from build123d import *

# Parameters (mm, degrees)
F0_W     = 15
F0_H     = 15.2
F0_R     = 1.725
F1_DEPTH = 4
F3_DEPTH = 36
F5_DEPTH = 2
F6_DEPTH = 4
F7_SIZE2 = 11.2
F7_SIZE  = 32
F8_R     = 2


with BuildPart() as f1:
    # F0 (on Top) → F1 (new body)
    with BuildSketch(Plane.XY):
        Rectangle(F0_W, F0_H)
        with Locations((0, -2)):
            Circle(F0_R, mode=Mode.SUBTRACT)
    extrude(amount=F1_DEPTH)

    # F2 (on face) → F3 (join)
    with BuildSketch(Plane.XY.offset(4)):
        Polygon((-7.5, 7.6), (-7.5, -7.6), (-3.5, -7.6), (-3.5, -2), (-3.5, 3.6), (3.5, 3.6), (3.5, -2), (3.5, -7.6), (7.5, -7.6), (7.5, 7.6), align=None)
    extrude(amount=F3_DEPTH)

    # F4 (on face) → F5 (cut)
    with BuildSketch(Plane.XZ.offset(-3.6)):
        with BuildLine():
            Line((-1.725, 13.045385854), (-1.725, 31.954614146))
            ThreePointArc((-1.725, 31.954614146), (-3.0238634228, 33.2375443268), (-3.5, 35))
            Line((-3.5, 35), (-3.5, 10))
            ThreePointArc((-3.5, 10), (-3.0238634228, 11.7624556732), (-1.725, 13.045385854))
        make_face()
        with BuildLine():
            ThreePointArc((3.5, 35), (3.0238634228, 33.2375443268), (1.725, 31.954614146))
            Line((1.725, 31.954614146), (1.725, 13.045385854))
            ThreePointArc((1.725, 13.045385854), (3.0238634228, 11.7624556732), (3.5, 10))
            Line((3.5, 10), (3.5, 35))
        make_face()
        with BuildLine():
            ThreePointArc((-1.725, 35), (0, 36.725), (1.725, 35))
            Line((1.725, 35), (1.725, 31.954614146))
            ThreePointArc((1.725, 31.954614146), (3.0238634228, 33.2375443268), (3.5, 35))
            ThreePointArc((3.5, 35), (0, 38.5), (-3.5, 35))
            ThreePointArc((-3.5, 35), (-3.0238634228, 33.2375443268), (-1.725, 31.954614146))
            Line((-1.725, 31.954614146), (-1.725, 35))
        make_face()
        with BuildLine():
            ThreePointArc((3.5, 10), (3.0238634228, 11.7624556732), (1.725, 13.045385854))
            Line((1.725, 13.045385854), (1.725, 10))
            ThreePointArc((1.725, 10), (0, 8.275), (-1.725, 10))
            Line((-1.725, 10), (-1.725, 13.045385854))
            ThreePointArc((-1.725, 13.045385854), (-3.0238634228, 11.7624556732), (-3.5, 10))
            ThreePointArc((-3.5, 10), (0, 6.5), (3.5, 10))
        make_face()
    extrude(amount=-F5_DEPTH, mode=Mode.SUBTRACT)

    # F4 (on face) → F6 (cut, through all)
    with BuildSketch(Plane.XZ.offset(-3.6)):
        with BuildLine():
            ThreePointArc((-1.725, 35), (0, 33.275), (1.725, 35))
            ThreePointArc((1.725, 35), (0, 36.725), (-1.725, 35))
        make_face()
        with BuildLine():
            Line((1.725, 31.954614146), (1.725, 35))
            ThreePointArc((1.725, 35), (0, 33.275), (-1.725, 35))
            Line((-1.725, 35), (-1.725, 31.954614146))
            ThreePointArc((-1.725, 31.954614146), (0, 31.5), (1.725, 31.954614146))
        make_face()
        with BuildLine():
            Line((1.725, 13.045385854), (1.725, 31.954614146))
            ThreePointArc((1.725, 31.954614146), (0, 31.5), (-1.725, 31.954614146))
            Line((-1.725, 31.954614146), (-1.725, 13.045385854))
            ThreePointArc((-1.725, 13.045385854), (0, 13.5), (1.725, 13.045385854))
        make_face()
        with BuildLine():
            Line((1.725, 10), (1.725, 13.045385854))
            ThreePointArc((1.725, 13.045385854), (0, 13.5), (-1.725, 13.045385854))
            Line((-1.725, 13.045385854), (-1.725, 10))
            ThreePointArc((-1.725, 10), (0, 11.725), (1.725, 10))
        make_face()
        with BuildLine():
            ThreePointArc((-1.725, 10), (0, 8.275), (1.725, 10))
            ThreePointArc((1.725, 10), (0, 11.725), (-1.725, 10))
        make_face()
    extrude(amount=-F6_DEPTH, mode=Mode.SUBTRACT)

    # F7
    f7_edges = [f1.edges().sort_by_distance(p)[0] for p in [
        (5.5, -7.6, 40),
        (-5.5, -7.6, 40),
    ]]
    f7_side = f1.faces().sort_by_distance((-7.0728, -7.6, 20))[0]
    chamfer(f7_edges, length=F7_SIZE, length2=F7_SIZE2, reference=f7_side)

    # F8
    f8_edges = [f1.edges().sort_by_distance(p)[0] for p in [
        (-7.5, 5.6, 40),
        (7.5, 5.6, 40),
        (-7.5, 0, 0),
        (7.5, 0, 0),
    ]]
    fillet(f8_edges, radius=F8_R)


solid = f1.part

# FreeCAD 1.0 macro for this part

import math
import FreeCAD as App
import Part
import Sketcher


def edges_at(feature, points):
    """Names of the edges that pass closest to the given points."""
    edges = feature.Shape.Edges
    near = lambda p: min(range(len(edges)), key=lambda i: edges[i].distToShape(Part.Vertex(*p))[0])
    return sorted({f"Edge{near(p) + 1}" for p in points})


def add_polygon(sketch, points):
    """Adds a closed chain of lines whose ends are joined by coincident constraints."""
    first, n = sketch.GeometryCount, len(points)
    for a, b in zip(points, points[1:] + points[:1]):
        sketch.addGeometry(Part.LineSegment(App.Vector(*a, 0), App.Vector(*b, 0)), False)
    for i in range(n):
        sketch.addConstraint(Sketcher.Constraint("Coincident", first + i, 2, first + (i + 1) % n, 1))

doc = App.newDocument("Part")
params = doc.addObject("Spreadsheet::Sheet", "Params")
for row, (alias, value) in enumerate([
    ("sketch1_diameter", "3.45 mm"),
    ("sketch1_width", "15 mm"),
    ("sketch1_height", "15.2 mm"),
    ("pad1_length", "4 mm"),
    ("sketch2_width", "4 mm"),
    ("sketch2_width2", "7 mm"),
    ("sketch2_height", "15.2 mm"),
    ("sketch2_height2", "11.2 mm"),
    ("pad2_length", "36 mm"),
    ("sketch3_radius", "3.5 mm"),
    ("sketch3_height", "25 mm"),
    ("pocket1_length", "2 mm"),
    ("sketch4_height", "25 mm"),
    ("chamfer_size", "32 mm"),
    ("chamfer_size2", "11.2 mm"),
    ("fillet_radius", "2 mm"),
], start=1):
    params.set(f"A{row}", alias)
    params.set(f"B{row}", "=" + value)
    params.setAlias(f"B{row}", alias)

body = doc.addObject("PartDesign::Body", "Body")

sketch1 = body.newObject("Sketcher::SketchObject", "Sketch")
sketch1.AttachmentSupport = (doc.getObject("XY_Plane"), [""])
sketch1.MapMode = "FlatFace"
add_polygon(sketch1, [(-7.5, 7.6), (-7.5, -7.6), (7.5, -7.6), (7.5, 7.6)])
sketch1.addGeometry(Part.Circle(App.Vector(0, -2, 0), App.Vector(0, 0, 1), 1.725), False)
sketch1.addConstraint(Sketcher.Constraint("Vertical", 0))
sketch1.addConstraint(Sketcher.Constraint("Horizontal", 1))
sketch1.addConstraint(Sketcher.Constraint("Vertical", 2))
sketch1.addConstraint(Sketcher.Constraint("Horizontal", 3))
sketch1.addConstraint(Sketcher.Constraint("Symmetric", 0, 2, 2, 2, -1, 1))
sketch1.addConstraint(Sketcher.Constraint("PointOnObject", 4, 3, -2))
sketch1.addConstraint(Sketcher.Constraint("Diameter", 4, 3.45))
sketch1.addConstraint(Sketcher.Constraint("DistanceX", 1, 1, 1, 2, 15.0))
sketch1.addConstraint(Sketcher.Constraint("DistanceY", 0, 2, 0, 1, 15.2))
sketch1.addConstraint(Sketcher.Constraint("DistanceY", 4, 3, -1, 1, 2.0))
sketch1.setExpression("Constraints[10]", "Params.sketch1_diameter")
sketch1.setExpression("Constraints[11]", "Params.sketch1_width")
sketch1.setExpression("Constraints[12]", "Params.sketch1_height")
pad1 = body.newObject("PartDesign::Pad", "Pad")
pad1.Profile = sketch1
pad1.setExpression("Length", "Params.pad1_length")

sketch2 = body.newObject("Sketcher::SketchObject", "Sketch001")
sketch2.AttachmentSupport = (doc.getObject("XY_Plane"), [""])
sketch2.MapMode = "FlatFace"
sketch2.AttachmentOffset = App.Placement(App.Vector(0, 0, 4), App.Rotation())
add_polygon(sketch2, [(-7.5, 7.6), (-7.5, -7.6), (-3.5, -7.6), (-3.5, 3.6), (3.5, 3.6), (3.5, -7.6), (7.5, -7.6), (7.5, 7.6)])
sketch2.addConstraint(Sketcher.Constraint("Vertical", 0))
sketch2.addConstraint(Sketcher.Constraint("Horizontal", 1))
sketch2.addConstraint(Sketcher.Constraint("Vertical", 2))
sketch2.addConstraint(Sketcher.Constraint("Horizontal", 3))
sketch2.addConstraint(Sketcher.Constraint("Vertical", 4))
sketch2.addConstraint(Sketcher.Constraint("Horizontal", 5))
sketch2.addConstraint(Sketcher.Constraint("Vertical", 6))
sketch2.addConstraint(Sketcher.Constraint("Horizontal", 7))
sketch2.addConstraint(Sketcher.Constraint("Symmetric", 0, 2, 6, 2, -1, 1))
sketch2.addConstraint(Sketcher.Constraint("Symmetric", 1, 2, 4, 2, -2))
sketch2.addConstraint(Sketcher.Constraint("DistanceX", 1, 1, 1, 2, 4.0))
sketch2.addConstraint(Sketcher.Constraint("DistanceX", 3, 1, 3, 2, 7.0))
sketch2.addConstraint(Sketcher.Constraint("DistanceY", 0, 2, 0, 1, 15.2))
sketch2.addConstraint(Sketcher.Constraint("DistanceY", 2, 1, 2, 2, 11.2))
sketch2.setExpression("Constraints[18]", "Params.sketch2_width")
sketch2.setExpression("Constraints[19]", "Params.sketch2_width2")
sketch2.setExpression("Constraints[20]", "Params.sketch2_height")
sketch2.setExpression("Constraints[21]", "Params.sketch2_height2")
pad2 = body.newObject("PartDesign::Pad", "Pad001")
pad2.Profile = sketch2
pad2.setExpression("Length", "Params.pad2_length")

sketch3 = body.newObject("Sketcher::SketchObject", "Sketch002")
sketch3.AttachmentSupport = (doc.getObject("XZ_Plane"), [""])
sketch3.MapMode = "FlatFace"
sketch3.AttachmentOffset = App.Placement(App.Vector(0, 0, -3.6), App.Rotation())
sketch3.addGeometry(Part.LineSegment(App.Vector(3.5, 10, 0), App.Vector(3.5, 35, 0)), False)
sketch3.addGeometry(Part.ArcOfCircle(Part.Circle(App.Vector(0, 35, 0), App.Vector(0, 0, 1), 3.5), math.radians(0), math.radians(180)), False)
sketch3.addGeometry(Part.LineSegment(App.Vector(-3.5, 35, 0), App.Vector(-3.5, 10, 0)), False)
sketch3.addGeometry(Part.ArcOfCircle(Part.Circle(App.Vector(0, 10, 0), App.Vector(0, 0, 1), 3.5), math.radians(180), math.radians(360)), False)
sketch3.addGeometry(Part.ArcOfCircle(Part.Circle(App.Vector(0, 35, 0), App.Vector(0, 0, 1), 1.725), math.radians(0), math.radians(180)), False)
sketch3.addGeometry(Part.LineSegment(App.Vector(1.725, 35, 0), App.Vector(1.725, 10, 0)), False)
sketch3.addGeometry(Part.ArcOfCircle(Part.Circle(App.Vector(0, 10, 0), App.Vector(0, 0, 1), 1.725), math.radians(180), math.radians(360)), False)
sketch3.addGeometry(Part.LineSegment(App.Vector(-1.725, 10, 0), App.Vector(-1.725, 35, 0)), False)
sketch3.addConstraint(Sketcher.Constraint("Tangent", 0, 2, 1, 1))
sketch3.addConstraint(Sketcher.Constraint("Tangent", 1, 2, 2, 1))
sketch3.addConstraint(Sketcher.Constraint("Tangent", 2, 2, 3, 1))
sketch3.addConstraint(Sketcher.Constraint("Tangent", 3, 2, 0, 1))
sketch3.addConstraint(Sketcher.Constraint("Tangent", 4, 1, 5, 1))
sketch3.addConstraint(Sketcher.Constraint("Tangent", 5, 2, 6, 2))
sketch3.addConstraint(Sketcher.Constraint("Tangent", 6, 1, 7, 1))
sketch3.addConstraint(Sketcher.Constraint("Tangent", 7, 2, 4, 2))
sketch3.addConstraint(Sketcher.Constraint("Vertical", 0))
sketch3.addConstraint(Sketcher.Constraint("Vertical", 2))
sketch3.addConstraint(Sketcher.Constraint("Vertical", 5))
sketch3.addConstraint(Sketcher.Constraint("Vertical", 7))
sketch3.addConstraint(Sketcher.Constraint("Coincident", 4, 3, 1, 3))
sketch3.addConstraint(Sketcher.Constraint("PointOnObject", 1, 3, -2))
sketch3.addConstraint(Sketcher.Constraint("Horizontal", 6, 3, 2, 2))
sketch3.addConstraint(Sketcher.Constraint("Radius", 1, 3.5))
sketch3.addConstraint(Sketcher.Constraint("DistanceY", 0, 1, 0, 2, 25.0))
sketch3.addConstraint(Sketcher.Constraint("DistanceY", -1, 1, 1, 3, 35.0))
sketch3.addConstraint(Sketcher.Constraint("Radius", 4, 1.725))
sketch3.setExpression("Constraints[15]", "Params.sketch3_radius")
sketch3.setExpression("Constraints[16]", "Params.sketch3_height")
pocket1 = body.newObject("PartDesign::Pocket", "Pocket")
pocket1.Profile = sketch3
pocket1.setExpression("Length", "Params.pocket1_length")

sketch4 = body.newObject("Sketcher::SketchObject", "Sketch003")
sketch4.AttachmentSupport = (doc.getObject("XZ_Plane"), [""])
sketch4.MapMode = "FlatFace"
sketch4.AttachmentOffset = App.Placement(App.Vector(0, 0, -3.6), App.Rotation())
sketch4.addGeometry(Part.ArcOfCircle(Part.Circle(App.Vector(0, 35, 0), App.Vector(0, 0, 1), 1.725), math.radians(0), math.radians(180)), False)
sketch4.addGeometry(Part.LineSegment(App.Vector(-1.725, 35, 0), App.Vector(-1.725, 10, 0)), False)
sketch4.addGeometry(Part.ArcOfCircle(Part.Circle(App.Vector(0, 10, 0), App.Vector(0, 0, 1), 1.725), math.radians(180), math.radians(360)), False)
sketch4.addGeometry(Part.LineSegment(App.Vector(1.725, 10, 0), App.Vector(1.725, 35, 0)), False)
sketch4.addConstraint(Sketcher.Constraint("Tangent", 0, 2, 1, 1))
sketch4.addConstraint(Sketcher.Constraint("Tangent", 1, 2, 2, 1))
sketch4.addConstraint(Sketcher.Constraint("Tangent", 2, 2, 3, 1))
sketch4.addConstraint(Sketcher.Constraint("Tangent", 3, 2, 0, 1))
sketch4.addConstraint(Sketcher.Constraint("Vertical", 1))
sketch4.addConstraint(Sketcher.Constraint("Vertical", 3))
sketch4.addConstraint(Sketcher.Constraint("PointOnObject", 0, 3, -2))
sketch4.addConstraint(Sketcher.Constraint("DistanceY", 1, 2, 1, 1, 25.0))
sketch4.addConstraint(Sketcher.Constraint("DistanceY", -1, 1, 0, 3, 35.0))
sketch4.addConstraint(Sketcher.Constraint("Radius", 0, 1.725))
sketch4.setExpression("Constraints[7]", "Params.sketch4_height")
pocket2 = body.newObject("PartDesign::Pocket", "Pocket001")
pocket2.Profile = sketch4
pocket2.Type = "ThroughAll"
doc.recompute()

chamfer = body.newObject("PartDesign::Chamfer", "Chamfer")
chamfer.Base = (pocket2, edges_at(pocket2, [(5.5, -7.6, 40), (-5.5, -7.6, 40)]))
chamfer.ChamferType = "Two distances"
chamfer.setExpression("Size", "Params.chamfer_size")
chamfer.setExpression("Size2", "Params.chamfer_size2")
doc.recompute()

fillet = body.newObject("PartDesign::Fillet", "Fillet")
fillet.Base = (chamfer, edges_at(chamfer, [
    (-7.5, 5.6, 40),
    (7.5, 5.6, 40),
    (-7.5, 0, 0),
    (7.5, 0, 0),
]))
fillet.setExpression("Radius", "Params.fillet_radius")

doc.recompute()
